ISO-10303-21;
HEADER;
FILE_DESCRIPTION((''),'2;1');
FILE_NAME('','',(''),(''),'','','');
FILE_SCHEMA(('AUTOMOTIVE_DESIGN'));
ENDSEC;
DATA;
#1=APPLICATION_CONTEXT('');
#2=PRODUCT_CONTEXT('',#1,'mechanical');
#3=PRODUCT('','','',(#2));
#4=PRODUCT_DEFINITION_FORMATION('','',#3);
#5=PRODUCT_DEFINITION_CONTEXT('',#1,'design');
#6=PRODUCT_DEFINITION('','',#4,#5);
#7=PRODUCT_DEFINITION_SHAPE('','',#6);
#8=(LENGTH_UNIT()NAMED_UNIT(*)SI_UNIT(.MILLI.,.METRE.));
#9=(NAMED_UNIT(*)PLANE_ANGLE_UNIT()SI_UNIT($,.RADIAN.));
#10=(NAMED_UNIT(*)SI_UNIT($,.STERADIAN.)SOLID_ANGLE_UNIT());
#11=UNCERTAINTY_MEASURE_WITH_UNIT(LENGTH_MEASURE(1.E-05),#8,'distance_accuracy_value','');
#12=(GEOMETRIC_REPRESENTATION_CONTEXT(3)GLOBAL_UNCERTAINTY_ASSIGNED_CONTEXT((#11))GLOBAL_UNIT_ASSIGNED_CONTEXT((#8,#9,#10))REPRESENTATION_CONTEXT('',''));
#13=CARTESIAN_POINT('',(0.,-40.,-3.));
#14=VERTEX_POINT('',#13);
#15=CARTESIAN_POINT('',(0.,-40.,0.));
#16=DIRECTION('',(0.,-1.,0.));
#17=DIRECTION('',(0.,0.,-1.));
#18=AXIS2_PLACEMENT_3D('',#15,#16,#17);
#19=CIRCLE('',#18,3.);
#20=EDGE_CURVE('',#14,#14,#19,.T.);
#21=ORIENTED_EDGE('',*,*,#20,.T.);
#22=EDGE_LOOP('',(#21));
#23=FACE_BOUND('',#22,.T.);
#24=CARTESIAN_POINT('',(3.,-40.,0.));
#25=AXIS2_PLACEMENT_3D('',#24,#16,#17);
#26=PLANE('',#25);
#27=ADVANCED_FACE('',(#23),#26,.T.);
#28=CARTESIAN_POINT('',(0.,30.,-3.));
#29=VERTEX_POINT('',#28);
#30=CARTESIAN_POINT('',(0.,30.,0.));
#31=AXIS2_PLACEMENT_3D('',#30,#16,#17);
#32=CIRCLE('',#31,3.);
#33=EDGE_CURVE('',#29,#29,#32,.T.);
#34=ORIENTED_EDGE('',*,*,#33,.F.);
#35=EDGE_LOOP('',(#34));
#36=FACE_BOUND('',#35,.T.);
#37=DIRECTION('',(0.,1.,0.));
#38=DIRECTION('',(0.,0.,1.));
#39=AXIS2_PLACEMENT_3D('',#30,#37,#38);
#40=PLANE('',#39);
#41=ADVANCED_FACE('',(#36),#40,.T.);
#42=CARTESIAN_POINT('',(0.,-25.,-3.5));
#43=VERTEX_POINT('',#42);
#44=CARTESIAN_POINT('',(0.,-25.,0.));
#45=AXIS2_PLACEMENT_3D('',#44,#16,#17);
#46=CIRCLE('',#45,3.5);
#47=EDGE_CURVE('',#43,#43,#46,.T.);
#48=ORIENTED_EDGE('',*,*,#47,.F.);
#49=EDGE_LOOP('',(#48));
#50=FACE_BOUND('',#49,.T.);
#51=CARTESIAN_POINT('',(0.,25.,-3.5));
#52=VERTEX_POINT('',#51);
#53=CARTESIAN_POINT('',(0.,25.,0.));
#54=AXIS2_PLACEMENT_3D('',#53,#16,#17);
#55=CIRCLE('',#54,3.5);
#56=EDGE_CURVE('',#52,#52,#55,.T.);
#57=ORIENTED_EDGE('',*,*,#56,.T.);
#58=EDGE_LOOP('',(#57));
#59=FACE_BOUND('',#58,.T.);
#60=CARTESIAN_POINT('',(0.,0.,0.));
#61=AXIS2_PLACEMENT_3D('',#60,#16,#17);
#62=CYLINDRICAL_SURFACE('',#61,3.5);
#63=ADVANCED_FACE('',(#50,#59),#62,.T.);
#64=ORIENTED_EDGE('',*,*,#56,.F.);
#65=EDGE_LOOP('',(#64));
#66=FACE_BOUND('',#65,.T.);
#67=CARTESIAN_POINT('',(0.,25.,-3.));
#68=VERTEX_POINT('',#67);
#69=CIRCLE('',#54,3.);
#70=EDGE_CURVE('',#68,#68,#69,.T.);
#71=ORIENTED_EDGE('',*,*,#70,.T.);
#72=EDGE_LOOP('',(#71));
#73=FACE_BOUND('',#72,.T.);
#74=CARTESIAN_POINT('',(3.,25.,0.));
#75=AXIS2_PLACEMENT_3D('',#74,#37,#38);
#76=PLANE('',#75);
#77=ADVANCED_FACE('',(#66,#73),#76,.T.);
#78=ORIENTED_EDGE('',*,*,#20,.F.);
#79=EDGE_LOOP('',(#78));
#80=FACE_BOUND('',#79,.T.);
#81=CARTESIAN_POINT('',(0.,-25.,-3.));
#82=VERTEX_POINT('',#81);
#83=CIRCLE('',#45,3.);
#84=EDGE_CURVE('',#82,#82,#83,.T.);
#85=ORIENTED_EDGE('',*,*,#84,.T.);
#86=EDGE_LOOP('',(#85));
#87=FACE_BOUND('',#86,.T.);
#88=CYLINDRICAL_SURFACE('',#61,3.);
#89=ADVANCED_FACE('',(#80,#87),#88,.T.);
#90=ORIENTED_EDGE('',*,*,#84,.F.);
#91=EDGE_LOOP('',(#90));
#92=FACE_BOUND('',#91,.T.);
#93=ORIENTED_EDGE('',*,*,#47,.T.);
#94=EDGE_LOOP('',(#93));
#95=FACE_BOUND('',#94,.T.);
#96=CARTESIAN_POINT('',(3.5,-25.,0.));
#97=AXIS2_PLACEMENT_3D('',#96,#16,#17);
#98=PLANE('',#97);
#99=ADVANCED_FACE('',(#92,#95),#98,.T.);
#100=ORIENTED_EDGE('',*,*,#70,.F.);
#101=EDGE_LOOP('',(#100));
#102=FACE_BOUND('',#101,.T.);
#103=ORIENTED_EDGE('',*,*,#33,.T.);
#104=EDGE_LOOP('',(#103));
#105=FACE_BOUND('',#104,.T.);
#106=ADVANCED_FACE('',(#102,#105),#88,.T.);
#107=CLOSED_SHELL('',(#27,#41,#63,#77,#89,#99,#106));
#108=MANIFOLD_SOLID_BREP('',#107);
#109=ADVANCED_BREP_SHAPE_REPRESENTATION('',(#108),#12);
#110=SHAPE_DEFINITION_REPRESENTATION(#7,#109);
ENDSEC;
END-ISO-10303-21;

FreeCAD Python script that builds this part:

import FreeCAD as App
import Part
import Sketcher

doc = App.newDocument("Part")
body = doc.addObject("PartDesign::Body", "Body")

sketch1 = body.newObject("Sketcher::SketchObject", "Sketch")
sketch1.AttachmentSupport = (doc.getObject("XY_Plane"), [""])
sketch1.MapMode = "FlatFace"
sketch1.addGeometry([
    Part.LineSegment(App.Vector(3, 30, 0), App.Vector(0, 30, 0)),
    Part.LineSegment(App.Vector(0, 30, 0), App.Vector(0, -40, 0)),
    Part.LineSegment(App.Vector(0, -40, 0), App.Vector(3, -40, 0)),
    Part.LineSegment(App.Vector(3, -40, 0), App.Vector(3, -25, 0)),
    Part.LineSegment(App.Vector(3, -25, 0), App.Vector(3.5, -25, 0)),
    Part.LineSegment(App.Vector(3.5, -25, 0), App.Vector(3.5, 25, 0)),
    Part.LineSegment(App.Vector(3.5, 25, 0), App.Vector(3, 25, 0)),
    Part.LineSegment(App.Vector(3, 25, 0), App.Vector(3, 30, 0)),
], False)
sketch1.addConstraint([
    Sketcher.Constraint("Coincident", 0, 2, 1, 1),
    Sketcher.Constraint("Coincident", 1, 2, 2, 1),
    Sketcher.Constraint("Coincident", 2, 2, 3, 1),
    Sketcher.Constraint("Coincident", 3, 2, 4, 1),
    Sketcher.Constraint("Coincident", 4, 2, 5, 1),
    Sketcher.Constraint("Coincident", 5, 2, 6, 1),
    Sketcher.Constraint("Coincident", 6, 2, 7, 1),
    Sketcher.Constraint("Coincident", 7, 2, 0, 1),
    Sketcher.Constraint("Horizontal", 0),
    Sketcher.Constraint("Vertical", 1),
    Sketcher.Constraint("Horizontal", 2),
    Sketcher.Constraint("Vertical", 3),
    Sketcher.Constraint("Horizontal", 4),
    Sketcher.Constraint("Vertical", 5),
    Sketcher.Constraint("Horizontal", 6),
    Sketcher.Constraint("Vertical", 7),
    Sketcher.Constraint("Symmetric", 3, 2, 6, 2, -1),
    Sketcher.Constraint("PointOnObject", 0, 2, -2),
    Sketcher.Constraint("DistanceX", 0, 2, 0, 1, 3.0),
    Sketcher.Constraint("DistanceY", 1, 2, 1, 1, 70.0),
    Sketcher.Constraint("DistanceY", 3, 1, 3, 2, 15.0),
    Sketcher.Constraint("DistanceY", 5, 1, 5, 2, 50.0),
    Sketcher.Constraint("DistanceX", 4, 1, 4, 2, 0.5),
])
revolution = body.newObject("PartDesign::Revolution", "Revolution")
revolution.Profile = sketch1
revolution.ReferenceAxis = (sketch1, ["V_Axis"])
revolution.Angle = 360

doc.recompute()
